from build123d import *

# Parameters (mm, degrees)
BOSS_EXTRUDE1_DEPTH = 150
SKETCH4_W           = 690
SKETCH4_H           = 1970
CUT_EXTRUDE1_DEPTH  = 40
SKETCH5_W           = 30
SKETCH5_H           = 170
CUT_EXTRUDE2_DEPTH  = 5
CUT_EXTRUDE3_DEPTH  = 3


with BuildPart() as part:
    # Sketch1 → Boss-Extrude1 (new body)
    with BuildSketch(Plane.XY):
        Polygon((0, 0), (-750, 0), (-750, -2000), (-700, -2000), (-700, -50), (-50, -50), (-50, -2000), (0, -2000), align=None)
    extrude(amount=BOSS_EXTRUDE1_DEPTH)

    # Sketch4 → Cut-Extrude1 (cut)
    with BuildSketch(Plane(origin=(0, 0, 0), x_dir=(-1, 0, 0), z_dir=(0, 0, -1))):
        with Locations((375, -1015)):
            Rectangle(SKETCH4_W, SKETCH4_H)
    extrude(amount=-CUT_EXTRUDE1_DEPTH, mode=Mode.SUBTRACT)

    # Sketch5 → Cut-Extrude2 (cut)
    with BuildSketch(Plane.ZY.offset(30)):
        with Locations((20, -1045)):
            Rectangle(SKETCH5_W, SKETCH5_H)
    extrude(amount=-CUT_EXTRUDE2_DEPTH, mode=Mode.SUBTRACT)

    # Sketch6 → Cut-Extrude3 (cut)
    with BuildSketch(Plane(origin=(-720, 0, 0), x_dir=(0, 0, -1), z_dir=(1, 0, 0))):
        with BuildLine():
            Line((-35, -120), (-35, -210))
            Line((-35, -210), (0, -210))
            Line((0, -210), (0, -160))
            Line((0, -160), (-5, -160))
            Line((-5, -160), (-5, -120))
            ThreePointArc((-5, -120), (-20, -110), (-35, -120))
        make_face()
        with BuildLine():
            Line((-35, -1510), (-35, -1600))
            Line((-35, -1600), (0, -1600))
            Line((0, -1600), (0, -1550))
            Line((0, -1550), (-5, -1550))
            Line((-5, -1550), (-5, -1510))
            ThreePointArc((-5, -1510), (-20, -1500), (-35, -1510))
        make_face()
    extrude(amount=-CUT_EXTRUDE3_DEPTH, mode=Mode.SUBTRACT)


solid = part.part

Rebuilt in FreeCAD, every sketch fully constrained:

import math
import FreeCAD as App
import Part
import Sketcher
from FreeCAD import Vector
Q = App.Units.Quantity

doc = App.newDocument("Part")
body = doc.addObject("PartDesign::Body", "Body")

# Sketch on XY plane
sketch1 = body.newObject("Sketcher::SketchObject", "Sketch")
sketch1.AttachmentSupport = (doc.getObject("XY_Plane"), [""])
sketch1.MapMode = "FlatFace"
sketch1.addGeometry([
    Part.LineSegment(Vector(0, 0, 0), Vector(-750, 0, 0)),  # 0
    Part.LineSegment(Vector(-750, 0, 0), Vector(-750, -2000, 0)),  # 1
    Part.LineSegment(Vector(-750, -2000, 0), Vector(-700, -2000, 0)),  # 2
    Part.LineSegment(Vector(-700, -2000, 0), Vector(-700, -50, 0)),  # 3
    Part.LineSegment(Vector(-700, -50, 0), Vector(-50, -50, 0)),  # 4
    Part.LineSegment(Vector(-50, -50, 0), Vector(-50, -2000, 0)),  # 5
    Part.LineSegment(Vector(-50, -2000, 0), Vector(0, -2000, 0)),  # 6
    Part.LineSegment(Vector(0, -2000, 0), Vector(0, 0, 0)),  # 7
], False)
sketch1.addConstraint([
    Sketcher.Constraint("Coincident", 0, 2, 1, 1),
    Sketcher.Constraint("Coincident", 1, 2, 2, 1),
    Sketcher.Constraint("Coincident", 2, 2, 3, 1),
    Sketcher.Constraint("Coincident", 3, 2, 4, 1),
    Sketcher.Constraint("Coincident", 4, 2, 5, 1),
    Sketcher.Constraint("Coincident", 5, 2, 6, 1),
    Sketcher.Constraint("Coincident", 6, 2, 7, 1),
    Sketcher.Constraint("Coincident", 7, 2, 0, 1),
    Sketcher.Constraint("Horizontal", 0),
    Sketcher.Constraint("Vertical", 1),
    Sketcher.Constraint("Horizontal", 2),
    Sketcher.Constraint("Vertical", 3),
    Sketcher.Constraint("Horizontal", 4),
    Sketcher.Constraint("Vertical", 5),
    Sketcher.Constraint("Horizontal", 6),
    Sketcher.Constraint("Vertical", 7),
    Sketcher.Constraint("Coincident", 7, 2, -1, 1),
    Sketcher.Constraint("Horizontal", 2, 2, 5, 2),
    Sketcher.Constraint("Equal", 2, 6),
    Sketcher.Constraint("DistanceX", 0, 2, 0, 1, Q("750 mm")),
    Sketcher.Constraint("DistanceX", 2, 1, 2, 2, Q("50 mm")),
    Sketcher.Constraint("DistanceY", 1, 2, 1, 1, Q("2000 mm")),
    Sketcher.Constraint("DistanceY", 3, 1, 3, 2, Q("1950 mm")),
])
pad1 = body.newObject("PartDesign::Pad", "Pad")
pad1.Profile = sketch1
pad1.Length = 150

# Sketch on XY plane
sketch2 = body.newObject("Sketcher::SketchObject", "Sketch001")
sketch2.AttachmentSupport = (doc.getObject("XY_Plane"), [""])
sketch2.MapMode = "FlatFace"
sketch2.addGeometry([
    Part.LineSegment(Vector(-30, -30, 0), Vector(-30, -2000, 0)),
    Part.LineSegment(Vector(-30, -2000, 0), Vector(-720, -2000, 0)),
    Part.LineSegment(Vector(-720, -2000, 0), Vector(-720, -30, 0)),
    Part.LineSegment(Vector(-720, -30, 0), Vector(-30, -30, 0)),
], False)
sketch2.addConstraint([
    Sketcher.Constraint("Coincident", 0, 2, 1, 1),
    Sketcher.Constraint("Coincident", 1, 2, 2, 1),
    Sketcher.Constraint("Coincident", 2, 2, 3, 1),
    Sketcher.Constraint("Coincident", 3, 2, 0, 1),
    Sketcher.Constraint("Vertical", 0),
    Sketcher.Constraint("Horizontal", 1),
    Sketcher.Constraint("Vertical", 2),
    Sketcher.Constraint("Horizontal", 3),
    Sketcher.Constraint("DistanceX", 1, 2, 1, 1, Q("690 mm")),
    Sketcher.Constraint("DistanceY", 0, 2, 0, 1, Q("1970 mm")),
    Sketcher.Constraint("DistanceX", 0, 2, -1, 1, Q("30 mm")),
    Sketcher.Constraint("DistanceY", 0, 2, -1, 1, Q("2000 mm")),
])
pocket1 = body.newObject("PartDesign::Pocket", "Pocket")
pocket1.Profile = sketch2
pocket1.Length = 40
pocket1.Reversed = True

# Sketch on YZ plane
sketch3 = body.newObject("Sketcher::SketchObject", "Sketch002")
sketch3.AttachmentSupport = (doc.getObject("YZ_Plane"), [""])
sketch3.MapMode = "FlatFace"
sketch3.AttachmentOffset = App.Placement(Vector(0, 0, -30), App.Rotation())
sketch3.addGeometry([
    Part.LineSegment(Vector(-960, 5, 0), Vector(-1130, 5, 0)),
    Part.LineSegment(Vector(-1130, 5, 0), Vector(-1130, 35, 0)),
    Part.LineSegment(Vector(-1130, 35, 0), Vector(-960, 35, 0)),
    Part.LineSegment(Vector(-960, 35, 0), Vector(-960, 5, 0)),
], False)
sketch3.addConstraint([
    Sketcher.Constraint("Coincident", 0, 2, 1, 1),
    Sketcher.Constraint("Coincident", 1, 2, 2, 1),
    Sketcher.Constraint("Coincident", 2, 2, 3, 1),
    Sketcher.Constraint("Coincident", 3, 2, 0, 1),
    Sketcher.Constraint("Horizontal", 0),
    Sketcher.Constraint("Vertical", 1),
    Sketcher.Constraint("Horizontal", 2),
    Sketcher.Constraint("Vertical", 3),
    Sketcher.Constraint("DistanceX", 0, 2, 0, 1, Q("170 mm")),
    Sketcher.Constraint("DistanceY", 1, 1, 1, 2, Q("30 mm")),
    Sketcher.Constraint("DistanceX", 0, 2, -1, 1, Q("1130 mm")),
    Sketcher.Constraint("DistanceY", -1, 1, 0, 2, Q("5 mm")),
])
pocket2 = body.newObject("PartDesign::Pocket", "Pocket001")
pocket2.Profile = sketch3
pocket2.Length = 5
pocket2.Reversed = True

# Sketch on YZ plane
sketch4 = body.newObject("Sketcher::SketchObject", "Sketch003")
sketch4.AttachmentSupport = (doc.getObject("YZ_Plane"), [""])
sketch4.MapMode = "FlatFace"
sketch4.AttachmentOffset = App.Placement(Vector(0, 0, -720), App.Rotation())
sketch4.addGeometry([
    Part.LineSegment(Vector(-120, 35, 0), Vector(-210, 35, 0)),  # 0
    Part.LineSegment(Vector(-210, 35, 0), Vector(-210, 0, 0)),  # 1
    Part.LineSegment(Vector(-210, 0, 0), Vector(-160, 0, 0)),  # 2
    Part.LineSegment(Vector(-160, 0, 0), Vector(-160, 5, 0)),  # 3
    Part.LineSegment(Vector(-160, 5, 0), Vector(-120, 5, 0)),  # 4
    Part.ArcOfCircle(Part.Circle(Vector(-126, 20, 0), Vector(0, 0, 1), 16), math.radians(-67), math.radians(67)),  # 5
    Part.LineSegment(Vector(-1510, 35, 0), Vector(-1600, 35, 0)),  # 6
    Part.LineSegment(Vector(-1600, 35, 0), Vector(-1600, 0, 0)),  # 7
    Part.LineSegment(Vector(-1600, 0, 0), Vector(-1550, 0, 0)),  # 8
    Part.LineSegment(Vector(-1550, 0, 0), Vector(-1550, 5, 0)),  # 9
    Part.LineSegment(Vector(-1550, 5, 0), Vector(-1510, 5, 0)),  # 10
    Part.ArcOfCircle(Part.Circle(Vector(-1516, 20, 0), Vector(0, 0, 1), 16), math.radians(-67), math.radians(67)),  # 11
], False)
sketch4.addConstraint([
    Sketcher.Constraint("Coincident", 0, 2, 1, 1),
    Sketcher.Constraint("Coincident", 1, 2, 2, 1),
    Sketcher.Constraint("Coincident", 2, 2, 3, 1),
    Sketcher.Constraint("Coincident", 3, 2, 4, 1),
    Sketcher.Constraint("Coincident", 4, 2, 5, 1),
    Sketcher.Constraint("Coincident", 5, 2, 0, 1),
    Sketcher.Constraint("Coincident", 6, 2, 7, 1),
    Sketcher.Constraint("Coincident", 7, 2, 8, 1),
    Sketcher.Constraint("Coincident", 8, 2, 9, 1),
    Sketcher.Constraint("Coincident", 9, 2, 10, 1),
    Sketcher.Constraint("Coincident", 10, 2, 11, 1),
    Sketcher.Constraint("Coincident", 11, 2, 6, 1),
    Sketcher.Constraint("Horizontal", 0),
    Sketcher.Constraint("Vertical", 1),
    Sketcher.Constraint("Horizontal", 2),
    Sketcher.Constraint("Vertical", 3),
    Sketcher.Constraint("Horizontal", 4),
    Sketcher.Constraint("Horizontal", 6),
    Sketcher.Constraint("Vertical", 7),
    Sketcher.Constraint("Horizontal", 8),
    Sketcher.Constraint("Vertical", 9),
    Sketcher.Constraint("Horizontal", 10),
    Sketcher.Constraint("Equal", 5, 11),
    Sketcher.Constraint("PointOnObject", 1, 2, -1),
    Sketcher.Constraint("PointOnObject", 7, 2, -1),
    Sketcher.Constraint("Horizontal", 5, 3, 11, 3),
    Sketcher.Constraint("Horizontal", 5, 2, 6, 2),
    Sketcher.Constraint("Horizontal", 4, 2, 9, 2),
    Sketcher.Constraint("Vertical", 4, 2, 5, 2),
    Sketcher.Constraint("Equal", 0, 6),
    Sketcher.Constraint("Equal", 2, 8),
    Sketcher.Constraint("DistanceX", 0, 2, 0, 1, Q("90 mm")),
    Sketcher.Constraint("DistanceX", 2, 1, 2, 2, Q("50 mm")),
    Sketcher.Constraint("DistanceY", 1, 2, 1, 1, Q("35 mm")),
    Sketcher.Constraint("DistanceY", 3, 1, 3, 2, Q("5 mm")),
    Sketcher.Constraint("Radius", 5, Q("16.25 mm")),
    Sketcher.Constraint("DistanceX", 0, 2, -1, 1, Q("210 mm")),
    Sketcher.Constraint("DistanceX", 6, 2, -1, 1, Q("1600 mm")),
])
pocket3 = body.newObject("PartDesign::Pocket", "Pocket002")
pocket3.Profile = sketch4
pocket3.Length = 3

doc.recompute()
